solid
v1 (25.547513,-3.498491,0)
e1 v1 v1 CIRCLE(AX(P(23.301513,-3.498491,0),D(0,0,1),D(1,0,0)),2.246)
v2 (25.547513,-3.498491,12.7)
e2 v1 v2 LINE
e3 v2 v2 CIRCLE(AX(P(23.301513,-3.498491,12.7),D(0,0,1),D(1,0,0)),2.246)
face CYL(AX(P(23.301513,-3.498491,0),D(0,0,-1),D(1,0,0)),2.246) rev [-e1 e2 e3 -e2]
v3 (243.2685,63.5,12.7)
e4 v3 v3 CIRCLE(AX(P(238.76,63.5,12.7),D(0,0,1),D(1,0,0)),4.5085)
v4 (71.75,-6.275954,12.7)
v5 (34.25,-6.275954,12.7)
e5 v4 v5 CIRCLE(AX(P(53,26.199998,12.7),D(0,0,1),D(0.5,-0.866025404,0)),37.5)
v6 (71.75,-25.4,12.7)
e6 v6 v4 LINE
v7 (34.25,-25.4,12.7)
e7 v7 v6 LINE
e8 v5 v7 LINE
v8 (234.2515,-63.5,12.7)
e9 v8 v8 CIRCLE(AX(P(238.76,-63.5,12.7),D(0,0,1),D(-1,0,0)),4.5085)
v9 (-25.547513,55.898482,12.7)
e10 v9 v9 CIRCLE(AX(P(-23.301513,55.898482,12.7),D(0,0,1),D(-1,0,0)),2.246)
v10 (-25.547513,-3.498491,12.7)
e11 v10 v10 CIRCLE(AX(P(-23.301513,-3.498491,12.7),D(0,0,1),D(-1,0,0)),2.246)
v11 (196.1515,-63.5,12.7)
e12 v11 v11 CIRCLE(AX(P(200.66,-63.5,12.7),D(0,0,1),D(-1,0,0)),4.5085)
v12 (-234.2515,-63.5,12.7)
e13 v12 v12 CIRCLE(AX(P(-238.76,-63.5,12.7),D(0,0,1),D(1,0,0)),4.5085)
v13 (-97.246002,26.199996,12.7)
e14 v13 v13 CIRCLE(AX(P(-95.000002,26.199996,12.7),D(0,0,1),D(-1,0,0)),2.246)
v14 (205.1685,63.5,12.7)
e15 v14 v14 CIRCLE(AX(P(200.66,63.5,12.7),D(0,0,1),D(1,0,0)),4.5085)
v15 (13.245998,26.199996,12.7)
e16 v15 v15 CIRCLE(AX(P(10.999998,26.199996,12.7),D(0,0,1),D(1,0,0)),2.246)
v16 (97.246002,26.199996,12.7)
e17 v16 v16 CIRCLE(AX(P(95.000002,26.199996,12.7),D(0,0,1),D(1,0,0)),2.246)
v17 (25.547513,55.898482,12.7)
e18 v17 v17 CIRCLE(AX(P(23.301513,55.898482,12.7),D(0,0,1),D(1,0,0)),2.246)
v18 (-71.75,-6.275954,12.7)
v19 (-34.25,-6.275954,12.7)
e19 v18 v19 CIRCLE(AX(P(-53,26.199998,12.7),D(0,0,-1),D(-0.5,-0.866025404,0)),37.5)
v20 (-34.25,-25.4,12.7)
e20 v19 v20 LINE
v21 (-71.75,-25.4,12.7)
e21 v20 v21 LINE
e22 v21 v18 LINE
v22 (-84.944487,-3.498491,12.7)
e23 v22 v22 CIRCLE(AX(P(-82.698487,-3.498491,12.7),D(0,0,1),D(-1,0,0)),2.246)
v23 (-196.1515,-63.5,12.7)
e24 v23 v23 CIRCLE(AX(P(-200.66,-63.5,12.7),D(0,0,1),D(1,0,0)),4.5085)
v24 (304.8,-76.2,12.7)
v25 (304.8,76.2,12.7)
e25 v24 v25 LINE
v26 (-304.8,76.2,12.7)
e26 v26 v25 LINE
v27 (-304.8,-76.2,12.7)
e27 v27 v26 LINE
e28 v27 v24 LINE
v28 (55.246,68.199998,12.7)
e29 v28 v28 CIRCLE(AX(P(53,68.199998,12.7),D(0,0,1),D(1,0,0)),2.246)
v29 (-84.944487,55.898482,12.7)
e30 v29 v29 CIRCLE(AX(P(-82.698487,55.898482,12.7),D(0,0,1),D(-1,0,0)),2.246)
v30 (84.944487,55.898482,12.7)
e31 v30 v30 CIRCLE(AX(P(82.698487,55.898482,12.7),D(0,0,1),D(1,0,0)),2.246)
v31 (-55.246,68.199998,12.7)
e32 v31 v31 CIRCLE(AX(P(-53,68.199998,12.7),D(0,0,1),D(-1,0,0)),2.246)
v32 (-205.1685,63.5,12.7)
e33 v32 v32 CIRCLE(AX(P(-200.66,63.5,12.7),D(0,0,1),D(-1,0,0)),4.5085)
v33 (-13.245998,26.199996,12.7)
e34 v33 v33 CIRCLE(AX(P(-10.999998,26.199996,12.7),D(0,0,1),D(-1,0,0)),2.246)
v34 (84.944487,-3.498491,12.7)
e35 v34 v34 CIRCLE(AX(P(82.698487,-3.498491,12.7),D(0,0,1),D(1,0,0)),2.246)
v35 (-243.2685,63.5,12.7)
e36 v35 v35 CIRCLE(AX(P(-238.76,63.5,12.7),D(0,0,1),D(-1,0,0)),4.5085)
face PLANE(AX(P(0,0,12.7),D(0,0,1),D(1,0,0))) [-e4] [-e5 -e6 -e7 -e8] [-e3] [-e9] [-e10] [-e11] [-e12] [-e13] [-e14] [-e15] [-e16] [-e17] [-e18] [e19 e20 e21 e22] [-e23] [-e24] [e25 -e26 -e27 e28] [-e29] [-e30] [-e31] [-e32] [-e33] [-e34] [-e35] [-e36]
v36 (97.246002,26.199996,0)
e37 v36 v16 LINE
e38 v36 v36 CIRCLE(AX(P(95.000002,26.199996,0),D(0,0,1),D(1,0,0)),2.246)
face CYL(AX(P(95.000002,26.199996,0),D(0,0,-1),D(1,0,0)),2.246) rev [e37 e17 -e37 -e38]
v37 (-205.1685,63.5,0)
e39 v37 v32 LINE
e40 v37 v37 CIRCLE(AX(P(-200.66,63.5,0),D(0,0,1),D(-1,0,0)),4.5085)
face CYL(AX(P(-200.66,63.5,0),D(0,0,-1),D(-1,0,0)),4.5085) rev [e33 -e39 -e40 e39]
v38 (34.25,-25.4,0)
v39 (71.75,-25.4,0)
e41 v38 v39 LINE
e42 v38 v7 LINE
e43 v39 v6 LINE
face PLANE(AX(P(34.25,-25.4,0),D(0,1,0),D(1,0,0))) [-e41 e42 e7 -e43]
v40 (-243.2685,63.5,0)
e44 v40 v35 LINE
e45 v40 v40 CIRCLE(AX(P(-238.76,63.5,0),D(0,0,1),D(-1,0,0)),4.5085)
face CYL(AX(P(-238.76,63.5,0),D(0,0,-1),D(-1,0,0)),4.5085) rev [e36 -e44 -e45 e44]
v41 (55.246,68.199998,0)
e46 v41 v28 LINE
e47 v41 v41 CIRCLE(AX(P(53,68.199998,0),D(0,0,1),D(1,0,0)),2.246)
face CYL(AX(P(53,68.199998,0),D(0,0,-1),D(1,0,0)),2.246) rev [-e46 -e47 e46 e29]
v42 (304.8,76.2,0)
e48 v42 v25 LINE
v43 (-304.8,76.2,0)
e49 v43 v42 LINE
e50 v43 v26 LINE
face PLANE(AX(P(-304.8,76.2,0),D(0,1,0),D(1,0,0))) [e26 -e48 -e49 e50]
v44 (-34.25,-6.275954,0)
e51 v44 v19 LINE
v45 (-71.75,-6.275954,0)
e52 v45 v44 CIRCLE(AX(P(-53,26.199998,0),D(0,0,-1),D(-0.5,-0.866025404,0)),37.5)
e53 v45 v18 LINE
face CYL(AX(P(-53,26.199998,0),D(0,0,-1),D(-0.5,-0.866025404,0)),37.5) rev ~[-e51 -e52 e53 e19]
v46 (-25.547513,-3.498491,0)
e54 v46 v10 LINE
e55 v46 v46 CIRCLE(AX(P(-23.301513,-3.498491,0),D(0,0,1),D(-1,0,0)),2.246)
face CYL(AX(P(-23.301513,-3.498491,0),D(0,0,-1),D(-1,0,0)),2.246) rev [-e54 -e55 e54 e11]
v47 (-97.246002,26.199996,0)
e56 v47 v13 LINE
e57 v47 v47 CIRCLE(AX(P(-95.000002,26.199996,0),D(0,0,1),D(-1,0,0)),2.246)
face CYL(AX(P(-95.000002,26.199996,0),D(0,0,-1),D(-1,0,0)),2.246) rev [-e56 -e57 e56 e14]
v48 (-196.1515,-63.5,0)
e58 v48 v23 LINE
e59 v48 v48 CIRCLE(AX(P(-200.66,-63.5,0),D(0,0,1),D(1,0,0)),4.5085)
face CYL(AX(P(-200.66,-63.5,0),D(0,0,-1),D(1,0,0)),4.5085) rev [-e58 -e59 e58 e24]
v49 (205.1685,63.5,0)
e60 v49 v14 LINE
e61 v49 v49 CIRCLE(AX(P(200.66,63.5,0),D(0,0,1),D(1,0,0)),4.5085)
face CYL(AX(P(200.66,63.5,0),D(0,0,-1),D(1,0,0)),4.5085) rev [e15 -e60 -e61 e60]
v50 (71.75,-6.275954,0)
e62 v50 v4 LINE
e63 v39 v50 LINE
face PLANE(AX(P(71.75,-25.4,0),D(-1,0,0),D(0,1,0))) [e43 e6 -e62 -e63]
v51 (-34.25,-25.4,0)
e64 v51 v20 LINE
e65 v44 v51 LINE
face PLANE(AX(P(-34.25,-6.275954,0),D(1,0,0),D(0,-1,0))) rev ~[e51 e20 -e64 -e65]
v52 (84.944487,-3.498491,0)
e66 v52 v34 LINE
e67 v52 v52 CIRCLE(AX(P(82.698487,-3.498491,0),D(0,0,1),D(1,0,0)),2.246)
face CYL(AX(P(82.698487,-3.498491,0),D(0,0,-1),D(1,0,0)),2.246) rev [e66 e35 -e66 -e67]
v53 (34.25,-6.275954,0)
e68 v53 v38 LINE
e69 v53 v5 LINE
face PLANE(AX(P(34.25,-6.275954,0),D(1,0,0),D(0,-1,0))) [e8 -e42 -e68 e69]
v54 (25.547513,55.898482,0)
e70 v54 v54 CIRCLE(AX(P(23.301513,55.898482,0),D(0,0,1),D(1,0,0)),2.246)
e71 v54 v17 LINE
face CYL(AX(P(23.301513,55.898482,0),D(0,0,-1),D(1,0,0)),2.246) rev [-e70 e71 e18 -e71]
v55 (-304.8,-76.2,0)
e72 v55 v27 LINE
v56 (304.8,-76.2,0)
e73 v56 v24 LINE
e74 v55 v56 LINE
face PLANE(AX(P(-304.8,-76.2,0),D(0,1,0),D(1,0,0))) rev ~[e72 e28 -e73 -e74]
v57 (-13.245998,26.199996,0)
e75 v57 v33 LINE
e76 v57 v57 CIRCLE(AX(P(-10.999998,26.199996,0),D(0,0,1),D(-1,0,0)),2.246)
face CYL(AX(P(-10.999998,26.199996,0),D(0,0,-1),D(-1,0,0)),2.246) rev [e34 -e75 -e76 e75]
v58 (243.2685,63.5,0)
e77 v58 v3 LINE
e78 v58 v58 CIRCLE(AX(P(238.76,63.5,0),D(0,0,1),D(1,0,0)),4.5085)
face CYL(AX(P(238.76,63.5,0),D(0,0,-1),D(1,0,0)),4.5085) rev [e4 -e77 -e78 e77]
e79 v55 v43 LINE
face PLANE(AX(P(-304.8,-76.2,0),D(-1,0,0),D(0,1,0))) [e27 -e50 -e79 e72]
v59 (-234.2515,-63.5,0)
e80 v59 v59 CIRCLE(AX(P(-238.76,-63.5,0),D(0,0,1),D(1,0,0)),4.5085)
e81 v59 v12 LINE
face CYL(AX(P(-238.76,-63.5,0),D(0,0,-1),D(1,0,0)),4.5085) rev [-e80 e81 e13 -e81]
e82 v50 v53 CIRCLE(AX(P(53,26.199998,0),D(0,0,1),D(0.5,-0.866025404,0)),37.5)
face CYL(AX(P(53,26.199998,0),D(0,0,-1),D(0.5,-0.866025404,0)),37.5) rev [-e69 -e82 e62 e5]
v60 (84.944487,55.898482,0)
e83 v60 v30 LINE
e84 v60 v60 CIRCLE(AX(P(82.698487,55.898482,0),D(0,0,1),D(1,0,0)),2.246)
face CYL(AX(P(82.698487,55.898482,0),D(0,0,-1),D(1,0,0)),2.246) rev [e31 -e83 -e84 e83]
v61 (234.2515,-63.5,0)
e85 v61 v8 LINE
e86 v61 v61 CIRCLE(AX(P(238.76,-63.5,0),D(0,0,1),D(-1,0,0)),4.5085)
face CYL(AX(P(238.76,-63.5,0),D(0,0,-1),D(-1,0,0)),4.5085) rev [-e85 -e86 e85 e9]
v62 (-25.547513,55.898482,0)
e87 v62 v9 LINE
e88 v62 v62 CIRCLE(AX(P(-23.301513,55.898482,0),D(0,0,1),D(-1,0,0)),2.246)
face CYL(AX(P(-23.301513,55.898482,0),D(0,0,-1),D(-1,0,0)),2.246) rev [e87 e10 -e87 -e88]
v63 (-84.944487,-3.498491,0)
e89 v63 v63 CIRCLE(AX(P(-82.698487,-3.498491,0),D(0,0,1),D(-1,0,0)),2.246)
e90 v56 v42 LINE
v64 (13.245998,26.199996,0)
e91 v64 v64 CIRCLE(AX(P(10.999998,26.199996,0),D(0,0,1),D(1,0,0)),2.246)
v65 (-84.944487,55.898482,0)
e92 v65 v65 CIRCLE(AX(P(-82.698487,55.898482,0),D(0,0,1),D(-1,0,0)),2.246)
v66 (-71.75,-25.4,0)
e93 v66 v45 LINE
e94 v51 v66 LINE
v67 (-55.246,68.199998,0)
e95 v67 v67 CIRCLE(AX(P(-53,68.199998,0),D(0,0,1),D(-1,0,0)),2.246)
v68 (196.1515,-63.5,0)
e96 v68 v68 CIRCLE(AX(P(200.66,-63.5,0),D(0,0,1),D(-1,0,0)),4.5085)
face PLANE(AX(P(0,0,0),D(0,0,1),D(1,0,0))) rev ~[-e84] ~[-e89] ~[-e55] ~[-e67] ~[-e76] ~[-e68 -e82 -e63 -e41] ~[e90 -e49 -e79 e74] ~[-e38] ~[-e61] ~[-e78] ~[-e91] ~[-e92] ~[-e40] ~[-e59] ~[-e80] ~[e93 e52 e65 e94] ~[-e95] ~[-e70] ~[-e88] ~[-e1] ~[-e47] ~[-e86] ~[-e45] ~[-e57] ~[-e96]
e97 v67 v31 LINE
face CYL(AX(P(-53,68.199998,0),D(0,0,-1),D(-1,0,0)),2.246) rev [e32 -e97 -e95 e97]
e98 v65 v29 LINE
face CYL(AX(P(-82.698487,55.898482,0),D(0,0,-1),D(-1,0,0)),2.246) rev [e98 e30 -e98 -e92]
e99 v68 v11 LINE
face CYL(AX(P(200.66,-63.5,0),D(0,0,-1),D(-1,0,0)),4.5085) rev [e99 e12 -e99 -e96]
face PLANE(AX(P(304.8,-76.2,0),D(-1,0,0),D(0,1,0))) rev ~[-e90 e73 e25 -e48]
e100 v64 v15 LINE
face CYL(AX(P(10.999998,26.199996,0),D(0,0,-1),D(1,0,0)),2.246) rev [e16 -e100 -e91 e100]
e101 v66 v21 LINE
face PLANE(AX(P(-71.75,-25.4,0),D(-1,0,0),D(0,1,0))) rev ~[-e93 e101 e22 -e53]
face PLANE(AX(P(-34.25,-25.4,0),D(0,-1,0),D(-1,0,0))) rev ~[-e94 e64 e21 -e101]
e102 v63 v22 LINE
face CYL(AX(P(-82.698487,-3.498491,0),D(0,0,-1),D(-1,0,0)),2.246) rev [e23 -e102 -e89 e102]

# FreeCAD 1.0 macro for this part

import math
import FreeCAD as App
import Part
import Sketcher

V = App.Vector
Q = App.Units.Quantity


def add_polygon(sketch, points):
    """Adds a closed chain of lines whose ends are joined by coincident constraints."""
    first, n = sketch.GeometryCount, len(points)
    for a, b in zip(points, points[1:] + points[:1]):
        sketch.addGeometry(Part.LineSegment(App.Vector(*a, 0), App.Vector(*b, 0)), False)
    for i in range(n):
        sketch.addConstraint(Sketcher.Constraint("Coincident", first + i, 2, first + (i + 1) % n, 1))

doc = App.newDocument("Part")
params = doc.addObject("Spreadsheet::Sheet", "Params")
for row, (alias, value) in enumerate([
    ("sketch1_width", "24 in"),
    ("sketch1_height", "6 in"),
    ("sketch1_diameter", "0.355 in"),
    ("pad1_length", "0.5 in"),
], start=1):
    params.set(f"A{row}", alias)
    params.set(f"B{row}", "=" + value)
    params.setAlias(f"B{row}", alias)

body = doc.addObject("PartDesign::Body", "Body")

sketch1 = body.newObject("Sketcher::SketchObject", "Sketch")
sketch1.AttachmentSupport = (doc.getObject("XY_Plane"), [""])
sketch1.MapMode = "FlatFace"
add_polygon(sketch1, [(-304.8, 76.2), (-304.8, -76.2), (304.8, -76.2), (304.8, 76.2)])
sketch1.addGeometry(Part.Circle(V(-238.76, -63.5, 0), V(0, 0, 1), 4.5085), False)
sketch1.addGeometry(Part.Circle(V(-200.66, -63.5, 0), V(0, 0, 1), 4.5085), False)
sketch1.addGeometry(Part.Circle(V(-82.698487, -3.498491, 0), V(0, 0, 1), 2.246), False)
sketch1.addGeometry(Part.Circle(V(-23.301513, -3.498491, 0), V(0, 0, 1), 2.246), False)
sketch1.addGeometry(Part.Circle(V(200.66, -63.5, 0), V(0, 0, 1), 4.5085), False)
sketch1.addGeometry(Part.Circle(V(238.76, -63.5, 0), V(0, 0, 1), 4.5085), False)
sketch1.addGeometry(Part.Circle(V(23.301513, -3.498491, 0), V(0, 0, 1), 2.246), False)
sketch1.addGeometry(Part.Circle(V(82.698487, -3.498491, 0), V(0, 0, 1), 2.246), False)
sketch1.addGeometry(Part.Circle(V(-95.000002, 26.199996, 0), V(0, 0, 1), 2.246), False)
sketch1.addGeometry(Part.ArcOfCircle(Part.Circle(V(-53, 26.199998, 0), V(0, 0, 1), 37.5), math.radians(-60), math.radians(240)), False)
sketch1.addGeometry(Part.LineSegment(V(-34.25, -6.275954, 0), V(-34.25, -25.4, 0)), False)
sketch1.addGeometry(Part.LineSegment(V(-34.25, -25.4, 0), V(-71.75, -25.4, 0)), False)
sketch1.addGeometry(Part.LineSegment(V(-71.75, -25.4, 0), V(-71.75, -6.275954, 0)), False)
sketch1.addGeometry(Part.Circle(V(-10.999998, 26.199996, 0), V(0, 0, 1), 2.246), False)
sketch1.addGeometry(Part.Circle(V(-238.76, 63.5, 0), V(0, 0, 1), 4.5085), False)
sketch1.addGeometry(Part.Circle(V(-200.66, 63.5, 0), V(0, 0, 1), 4.5085), False)
sketch1.addGeometry(Part.Circle(V(-82.698487, 55.898482, 0), V(0, 0, 1), 2.246), False)
sketch1.addGeometry(Part.Circle(V(-23.301513, 55.898482, 0), V(0, 0, 1), 2.246), False)
sketch1.addGeometry(Part.Circle(V(-53, 68.199998, 0), V(0, 0, 1), 2.246), False)
sketch1.addGeometry(Part.Circle(V(10.999998, 26.199996, 0), V(0, 0, 1), 2.246), False)
sketch1.addGeometry(Part.LineSegment(V(34.25, -25.4, 0), V(34.25, -6.275954, 0)), False)
sketch1.addGeometry(Part.ArcOfCircle(Part.Circle(V(53, 26.199998, 0), V(0, 0, 1), 37.5), math.radians(-60), math.radians(240)), False)
sketch1.addGeometry(Part.LineSegment(V(71.75, -6.275954, 0), V(71.75, -25.4, 0)), False)
sketch1.addGeometry(Part.LineSegment(V(71.75, -25.4, 0), V(34.25, -25.4, 0)), False)
sketch1.addGeometry(Part.Circle(V(95.000002, 26.199996, 0), V(0, 0, 1), 2.246), False)
sketch1.addGeometry(Part.Circle(V(23.301513, 55.898482, 0), V(0, 0, 1), 2.246), False)
sketch1.addGeometry(Part.Circle(V(53, 68.199998, 0), V(0, 0, 1), 2.246), False)
sketch1.addGeometry(Part.Circle(V(82.698487, 55.898482, 0), V(0, 0, 1), 2.246), False)
sketch1.addGeometry(Part.Circle(V(200.66, 63.5, 0), V(0, 0, 1), 4.5085), False)
sketch1.addGeometry(Part.Circle(V(238.76, 63.5, 0), V(0, 0, 1), 4.5085), False)
sketch1.addConstraint([
    Sketcher.Constraint("Coincident", 13, 1, 14, 1),
    Sketcher.Constraint("Coincident", 14, 2, 15, 1),
    Sketcher.Constraint("Coincident", 15, 2, 16, 1),
    Sketcher.Constraint("Coincident", 16, 2, 13, 2),
    Sketcher.Constraint("Coincident", 24, 2, 25, 2),
    Sketcher.Constraint("Coincident", 25, 1, 26, 1),
    Sketcher.Constraint("Coincident", 26, 2, 27, 1),
    Sketcher.Constraint("Coincident", 27, 2, 24, 1),
    Sketcher.Constraint("Vertical", 0),
    Sketcher.Constraint("Horizontal", 1),
    Sketcher.Constraint("Vertical", 2),
    Sketcher.Constraint("Horizontal", 3),
    Sketcher.Constraint("Vertical", 14),
    Sketcher.Constraint("Horizontal", 15),
    Sketcher.Constraint("Vertical", 16),
    Sketcher.Constraint("Vertical", 24),
    Sketcher.Constraint("Vertical", 26),
    Sketcher.Constraint("Horizontal", 27),
    Sketcher.Constraint("Equal", 4, 5),
    Sketcher.Constraint("Equal", 6, 7),
    Sketcher.Constraint("Equal", 5, 8),
    Sketcher.Constraint("Equal", 8, 9),
    Sketcher.Constraint("Equal", 7, 10),
    Sketcher.Constraint("Equal", 10, 11),
    Sketcher.Constraint("Equal", 11, 12),
    Sketcher.Constraint("Equal", 12, 17),
    Sketcher.Constraint("Equal", 9, 18),
    Sketcher.Constraint("Equal", 18, 19),
    Sketcher.Constraint("Equal", 17, 20),
    Sketcher.Constraint("Equal", 20, 21),
    Sketcher.Constraint("Equal", 21, 22),
    Sketcher.Constraint("Equal", 22, 23),
    Sketcher.Constraint("Equal", 13, 25),
    Sketcher.Constraint("Equal", 23, 28),
    Sketcher.Constraint("Equal", 28, 29),
    Sketcher.Constraint("Equal", 29, 30),
    Sketcher.Constraint("Equal", 30, 31),
    Sketcher.Constraint("Equal", 19, 32),
    Sketcher.Constraint("Equal", 32, 33),
    Sketcher.Constraint("Symmetric", 9, 3, 18, 3, -1, 1),
    Sketcher.Constraint("Symmetric", 8, 3, 19, 3, -1, 1),
    Sketcher.Constraint("Symmetric", 5, 3, 32, 3, -1, 1),
    Sketcher.Constraint("Symmetric", 4, 3, 33, 3, -1, 1),
    Sketcher.Constraint("Symmetric", 0, 2, 2, 2, -1, 1),
    Sketcher.Constraint("Symmetric", 5, 3, 8, 3, -2),
    Sketcher.Constraint("Symmetric", 4, 3, 9, 3, -2),
    Sketcher.Constraint("Symmetric", 7, 3, 10, 3, -2),
    Sketcher.Constraint("Symmetric", 6, 3, 11, 3, -2),
    Sketcher.Constraint("Symmetric", 17, 3, 23, 3, -2),
    Sketcher.Constraint("Symmetric", 13, 3, 25, 3, -2),
    Sketcher.Constraint("Symmetric", 12, 3, 28, 3, -2),
    Sketcher.Constraint("Symmetric", 21, 3, 29, 3, -2),
    Sketcher.Constraint("Symmetric", 22, 3, 30, 3, -2),
    Sketcher.Constraint("Symmetric", 20, 3, 31, 3, -2),
    Sketcher.Constraint("Symmetric", 15, 2, 26, 2, -2),
    Sketcher.Constraint("Horizontal", 4, 3, 5, 3),
    Sketcher.Constraint("Horizontal", 6, 3, 7, 3),
    Sketcher.Constraint("Horizontal", 12, 3, 17, 3),
    Sketcher.Constraint("Horizontal", 20, 3, 21, 3),
    Sketcher.Constraint("Horizontal", 13, 1, 16, 2),
    Sketcher.Constraint("Horizontal", 16, 2, 24, 2),
    Sketcher.Constraint("Vertical", 6, 3, 20, 3),
    Sketcher.Constraint("Vertical", 7, 3, 21, 3),
    Sketcher.Constraint("Vertical", 13, 3, 22, 3),
    Sketcher.Constraint("DistanceX", 1, 1, 1, 2, Q("24 in")),
    Sketcher.Constraint("DistanceY", 0, 2, 0, 1, Q("6 in")),
    Sketcher.Constraint("Diameter", 4, Q("0.355 in")),
    Sketcher.Constraint("DistanceY", 14, 2, -1, 1, Q("1 in")),
    Sketcher.Constraint("DistanceY", 4, 3, 18, 3, Q("5 in")),
    Sketcher.Constraint("DistanceX", 4, 3, -1, 1, Q("9.4 in")),
    Sketcher.Constraint("DistanceX", 5, 3, -1, 1, Q("7.9 in")),
    Sketcher.Constraint("Diameter", 6, Q("4.492 mm")),
    Sketcher.Constraint("Radius", 13, Q("37.5 mm")),
    Sketcher.Constraint("DistanceX", 15, 2, 15, 1, Q("37.5 mm")),
    Sketcher.Constraint("DistanceX", 13, 3, -1, 1, Q("53 mm")),
    Sketcher.Constraint("DistanceY", -1, 1, 13, 3, Q("26.199998 mm")),
    Sketcher.Constraint("DistanceY", -1, 1, 22, 3, Q("68.199998 mm")),
    Sketcher.Constraint("DistanceX", 6, 3, 10, 3, Q("106 mm")),
    Sketcher.Constraint("DistanceX", 17, 3, 28, 3, Q("106 mm")),
    Sketcher.Constraint("DistanceY", 6, 3, -1, 1, Q("3.498491 mm")),
    Sketcher.Constraint("DistanceX", 12, 3, 7, 3, Q("71.698489 mm")),
    Sketcher.Constraint("DistanceY", 13, 1, 17, 3, Q("32.47595 mm")),
    Sketcher.Constraint("DistanceX", 6, 3, -1, 1, Q("82.698487 mm")),
    Sketcher.Constraint("DistanceY", -1, 1, 20, 3, Q("55.898482 mm")),
])
sketch1.setExpression("Constraints[68]", "Params.sketch1_width")
sketch1.setExpression("Constraints[69]", "Params.sketch1_height")
sketch1.setExpression("Constraints[70]", "Params.sketch1_diameter")
pad1 = body.newObject("PartDesign::Pad", "Pad")
pad1.Profile = sketch1
pad1.setExpression("Length", "Params.pad1_length")

doc.recompute()
